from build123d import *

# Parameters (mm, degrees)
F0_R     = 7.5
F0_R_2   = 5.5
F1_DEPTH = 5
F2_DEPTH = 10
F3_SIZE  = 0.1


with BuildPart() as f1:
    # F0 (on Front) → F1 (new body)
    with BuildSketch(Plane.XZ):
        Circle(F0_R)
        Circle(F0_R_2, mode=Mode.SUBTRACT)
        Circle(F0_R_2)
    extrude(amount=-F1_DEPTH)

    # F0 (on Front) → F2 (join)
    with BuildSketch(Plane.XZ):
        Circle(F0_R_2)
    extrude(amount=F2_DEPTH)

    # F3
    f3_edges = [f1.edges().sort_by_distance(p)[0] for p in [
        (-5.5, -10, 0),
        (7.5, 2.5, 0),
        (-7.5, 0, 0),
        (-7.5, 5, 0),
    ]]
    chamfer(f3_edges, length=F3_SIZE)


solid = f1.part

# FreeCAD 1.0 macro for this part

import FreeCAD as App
import Part
import Sketcher
from FreeCAD import Vector
Q = App.Units.Quantity


def edges_at(feature, points):
    """Names of the edges that pass closest to the given points."""
    edges = feature.Shape.Edges
    near = lambda p: min(range(len(edges)), key=lambda i: edges[i].distToShape(Part.Vertex(*p))[0])
    return sorted({f"Edge{near(p) + 1}" for p in points})

doc = App.newDocument("Part")
body = doc.addObject("PartDesign::Body", "Body")

# Sketch on XZ plane
sketch1 = doc.addObject("Sketcher::SketchObject", "Sketch")
body.addObject(sketch1)
sketch1.AttachmentSupport = (doc.XZ_Plane, [""])
sketch1.MapMode = "FlatFace"
sketch1.addGeometry(Part.Circle(Vector(0, 0, 0), Vector(0, 0, 1), 8), False)
sketch1.addConstraint(Sketcher.Constraint("Coincident", 0, 3, -1, 1))
sketch1.addConstraint(Sketcher.Constraint("Diameter", 0, Q("15 mm")))
pad1 = doc.addObject("PartDesign::Pad", "Pad")
body.addObject(pad1)
pad1.Profile = sketch1
pad1.Length = 5
pad1.Reversed = True

# Sketch on XZ plane
sketch2 = doc.addObject("Sketcher::SketchObject", "Sketch001")
body.addObject(sketch2)
sketch2.AttachmentSupport = (doc.XZ_Plane, [""])
sketch2.MapMode = "FlatFace"
sketch2.addGeometry(Part.Circle(Vector(0, 0, 0), Vector(0, 0, 1), 6), False)
sketch2.addConstraint(Sketcher.Constraint("Coincident", 0, 3, -1, 1))
sketch2.addConstraint(Sketcher.Constraint("Diameter", 0, Q("11 mm")))
pad2 = doc.addObject("PartDesign::Pad", "Pad001")
body.addObject(pad2)
pad2.Profile = sketch2
pad2.Length = 10
doc.recompute()

chamfer = doc.addObject("PartDesign::Chamfer", "Chamfer")
body.addObject(chamfer)
chamfer.Base = (pad2, edges_at(pad2, [
    (-5.5, -10, 0),
    (7.5, 2.5, 0),
    (-7.5, 0, 0),
    (-7.5, 5, 0),
]))
chamfer.Size = 0.1

doc.recompute()
